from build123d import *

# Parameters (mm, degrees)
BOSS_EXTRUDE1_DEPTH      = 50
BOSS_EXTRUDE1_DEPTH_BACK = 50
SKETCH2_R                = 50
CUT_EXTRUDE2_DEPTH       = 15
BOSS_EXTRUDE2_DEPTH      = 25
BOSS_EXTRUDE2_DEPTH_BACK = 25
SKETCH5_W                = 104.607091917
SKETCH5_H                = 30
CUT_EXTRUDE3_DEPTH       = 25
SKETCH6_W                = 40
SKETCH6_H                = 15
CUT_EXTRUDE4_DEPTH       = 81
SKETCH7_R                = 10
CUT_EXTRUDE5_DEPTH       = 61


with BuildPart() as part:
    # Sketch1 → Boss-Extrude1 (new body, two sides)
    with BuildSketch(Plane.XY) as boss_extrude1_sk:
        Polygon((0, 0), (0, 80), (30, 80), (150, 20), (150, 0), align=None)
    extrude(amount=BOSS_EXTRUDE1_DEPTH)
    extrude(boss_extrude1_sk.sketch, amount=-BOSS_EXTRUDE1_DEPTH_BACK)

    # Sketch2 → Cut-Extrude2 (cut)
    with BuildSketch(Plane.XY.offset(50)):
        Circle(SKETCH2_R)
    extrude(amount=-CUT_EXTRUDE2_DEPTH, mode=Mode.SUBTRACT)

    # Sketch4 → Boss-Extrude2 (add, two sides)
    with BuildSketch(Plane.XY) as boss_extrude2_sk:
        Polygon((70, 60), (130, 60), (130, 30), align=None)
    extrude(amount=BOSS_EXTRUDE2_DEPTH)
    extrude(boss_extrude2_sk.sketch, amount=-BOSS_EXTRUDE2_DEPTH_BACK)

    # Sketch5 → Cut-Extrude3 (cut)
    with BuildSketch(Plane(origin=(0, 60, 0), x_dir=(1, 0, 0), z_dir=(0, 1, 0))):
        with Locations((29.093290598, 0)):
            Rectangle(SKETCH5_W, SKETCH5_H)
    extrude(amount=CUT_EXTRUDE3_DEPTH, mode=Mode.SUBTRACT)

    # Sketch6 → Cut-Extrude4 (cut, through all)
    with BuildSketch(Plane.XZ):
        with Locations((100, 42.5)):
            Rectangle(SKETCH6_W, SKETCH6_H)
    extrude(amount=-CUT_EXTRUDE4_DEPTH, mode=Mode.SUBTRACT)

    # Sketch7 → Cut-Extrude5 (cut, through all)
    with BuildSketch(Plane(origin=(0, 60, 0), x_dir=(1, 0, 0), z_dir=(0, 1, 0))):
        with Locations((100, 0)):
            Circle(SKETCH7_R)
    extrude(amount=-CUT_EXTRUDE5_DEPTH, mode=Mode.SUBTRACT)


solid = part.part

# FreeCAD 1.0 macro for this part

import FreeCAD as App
import Part
import Sketcher
from FreeCAD import Vector
Q = App.Units.Quantity


def add_polygon(sketch, points):
    """Adds a closed chain of lines whose ends are joined by coincident constraints."""
    first, n = sketch.GeometryCount, len(points)
    for a, b in zip(points, points[1:] + points[:1]):
        sketch.addGeometry(Part.LineSegment(App.Vector(*a, 0), App.Vector(*b, 0)), False)
    for i in range(n):
        sketch.addConstraint(Sketcher.Constraint("Coincident", first + i, 2, first + (i + 1) % n, 1))

doc = App.newDocument("Part")
body = doc.addObject("PartDesign::Body", "Body")

sketch1 = body.newObject("Sketcher::SketchObject", "Sketch")
sketch1.AttachmentSupport = (doc.getObject("XY_Plane"), [""])
sketch1.MapMode = "FlatFace"
add_polygon(sketch1, [(0, 80), (0, 0), (150, 0), (150, 20), (30, 80)])
sketch1.addConstraint([
    Sketcher.Constraint("Vertical", 0),
    Sketcher.Constraint("Horizontal", 1),
    Sketcher.Constraint("Vertical", 2),
    Sketcher.Constraint("Horizontal", 4),
    Sketcher.Constraint("Coincident", 0, 2, -1, 1),
    Sketcher.Constraint("DistanceX", 1, 1, 1, 2, Q("150 mm")),
    Sketcher.Constraint("DistanceX", 4, 2, 4, 1, Q("30 mm")),
    Sketcher.Constraint("DistanceY", 0, 2, 0, 1, Q("80 mm")),
    Sketcher.Constraint("DistanceY", 2, 1, 2, 2, Q("20 mm")),
])
pad1 = body.newObject("PartDesign::Pad", "Pad")
pad1.Profile = sketch1
pad1.Type = "TwoLengths"
pad1.Length = 50
pad1.Length2 = 50

sketch2 = body.newObject("Sketcher::SketchObject", "Sketch001")
sketch2.AttachmentSupport = (doc.getObject("XY_Plane"), [""])
sketch2.MapMode = "FlatFace"
sketch2.AttachmentOffset = App.Placement(Vector(0, 0, 50), App.Rotation())
sketch2.addGeometry(Part.Circle(Vector(0, 0, 0), Vector(0, 0, 1), 50), False)
sketch2.addConstraint([
    Sketcher.Constraint("Coincident", 0, 3, -1, 1),
    Sketcher.Constraint("Diameter", 0, Q("100 mm")),
])
pocket1 = body.newObject("PartDesign::Pocket", "Pocket")
pocket1.Profile = sketch2
pocket1.Length = 15

sketch3 = body.newObject("Sketcher::SketchObject", "Sketch002")
sketch3.AttachmentSupport = (doc.getObject("XY_Plane"), [""])
sketch3.MapMode = "FlatFace"
add_polygon(sketch3, [(130, 60), (70, 60), (130, 30)])
sketch3.addConstraint([
    Sketcher.Constraint("Horizontal", 0),
    Sketcher.Constraint("Vertical", 2),
    Sketcher.Constraint("DistanceX", 0, 2, 0, 1, Q("60 mm")),
    Sketcher.Constraint("DistanceY", 2, 1, 2, 2, Q("30 mm")),
    Sketcher.Constraint("DistanceX", -1, 1, 0, 2, Q("70 mm")),
    Sketcher.Constraint("DistanceY", -1, 1, 0, 2, Q("60 mm")),
])
pad2 = body.newObject("PartDesign::Pad", "Pad001")
pad2.Profile = sketch3
pad2.Type = "TwoLengths"
pad2.Length = 25
pad2.Length2 = 25

sketch4 = body.newObject("Sketcher::SketchObject", "Sketch003")
sketch4.AttachmentSupport = (doc.getObject("XZ_Plane"), [""])
sketch4.MapMode = "FlatFace"
sketch4.AttachmentOffset = App.Placement(Vector(0, 0, -60), App.Rotation())
add_polygon(sketch4, [(-23, -15), (-23, 15), (81, 15), (81, -15)])
sketch4.addConstraint([
    Sketcher.Constraint("Vertical", 0),
    Sketcher.Constraint("Horizontal", 1),
    Sketcher.Constraint("Vertical", 2),
    Sketcher.Constraint("Horizontal", 3),
    Sketcher.Constraint("DistanceY", 0, 1, 0, 2, Q("30 mm")),
    Sketcher.Constraint("DistanceY", -1, 1, 0, 2, Q("15 mm")),
    Sketcher.Constraint("DistanceX", 1, 1, 1, 2, Q("104.607092 mm")),
    Sketcher.Constraint("DistanceX", 0, 2, -1, 1, Q("23.210255 mm")),
])
pocket2 = body.newObject("PartDesign::Pocket", "Pocket001")
pocket2.Profile = sketch4
pocket2.Length = 25

sketch5 = body.newObject("Sketcher::SketchObject", "Sketch004")
sketch5.AttachmentSupport = (doc.getObject("XZ_Plane"), [""])
sketch5.MapMode = "FlatFace"
add_polygon(sketch5, [(80, 50), (80, 35), (120, 35), (120, 50)])
sketch5.addConstraint([
    Sketcher.Constraint("Vertical", 0),
    Sketcher.Constraint("Horizontal", 1),
    Sketcher.Constraint("Vertical", 2),
    Sketcher.Constraint("Horizontal", 3),
    Sketcher.Constraint("DistanceX", 1, 1, 1, 2, Q("40 mm")),
    Sketcher.Constraint("DistanceY", 0, 2, 0, 1, Q("15 mm")),
    Sketcher.Constraint("DistanceX", -1, 1, 0, 2, Q("80 mm")),
    Sketcher.Constraint("DistanceY", -1, 1, 0, 2, Q("35 mm")),
])
pocket3 = body.newObject("PartDesign::Pocket", "Pocket002")
pocket3.Profile = sketch5
pocket3.Type = "ThroughAll"

sketch6 = body.newObject("Sketcher::SketchObject", "Sketch005")
sketch6.AttachmentSupport = (doc.getObject("XZ_Plane"), [""])
sketch6.MapMode = "FlatFace"
sketch6.AttachmentOffset = App.Placement(Vector(0, 0, -60), App.Rotation())
sketch6.addGeometry(Part.Circle(Vector(100, 0, 0), Vector(0, 0, 1), 10), False)
sketch6.addConstraint([
    Sketcher.Constraint("PointOnObject", 0, 3, -1),
    Sketcher.Constraint("Diameter", 0, Q("20 mm")),
    Sketcher.Constraint("DistanceX", -1, 1, 0, 3, Q("100 mm")),
])
pocket4 = body.newObject("PartDesign::Pocket", "Pocket003")
pocket4.Profile = sketch6
pocket4.Type = "ThroughAll"
pocket4.Reversed = True

doc.recompute()
